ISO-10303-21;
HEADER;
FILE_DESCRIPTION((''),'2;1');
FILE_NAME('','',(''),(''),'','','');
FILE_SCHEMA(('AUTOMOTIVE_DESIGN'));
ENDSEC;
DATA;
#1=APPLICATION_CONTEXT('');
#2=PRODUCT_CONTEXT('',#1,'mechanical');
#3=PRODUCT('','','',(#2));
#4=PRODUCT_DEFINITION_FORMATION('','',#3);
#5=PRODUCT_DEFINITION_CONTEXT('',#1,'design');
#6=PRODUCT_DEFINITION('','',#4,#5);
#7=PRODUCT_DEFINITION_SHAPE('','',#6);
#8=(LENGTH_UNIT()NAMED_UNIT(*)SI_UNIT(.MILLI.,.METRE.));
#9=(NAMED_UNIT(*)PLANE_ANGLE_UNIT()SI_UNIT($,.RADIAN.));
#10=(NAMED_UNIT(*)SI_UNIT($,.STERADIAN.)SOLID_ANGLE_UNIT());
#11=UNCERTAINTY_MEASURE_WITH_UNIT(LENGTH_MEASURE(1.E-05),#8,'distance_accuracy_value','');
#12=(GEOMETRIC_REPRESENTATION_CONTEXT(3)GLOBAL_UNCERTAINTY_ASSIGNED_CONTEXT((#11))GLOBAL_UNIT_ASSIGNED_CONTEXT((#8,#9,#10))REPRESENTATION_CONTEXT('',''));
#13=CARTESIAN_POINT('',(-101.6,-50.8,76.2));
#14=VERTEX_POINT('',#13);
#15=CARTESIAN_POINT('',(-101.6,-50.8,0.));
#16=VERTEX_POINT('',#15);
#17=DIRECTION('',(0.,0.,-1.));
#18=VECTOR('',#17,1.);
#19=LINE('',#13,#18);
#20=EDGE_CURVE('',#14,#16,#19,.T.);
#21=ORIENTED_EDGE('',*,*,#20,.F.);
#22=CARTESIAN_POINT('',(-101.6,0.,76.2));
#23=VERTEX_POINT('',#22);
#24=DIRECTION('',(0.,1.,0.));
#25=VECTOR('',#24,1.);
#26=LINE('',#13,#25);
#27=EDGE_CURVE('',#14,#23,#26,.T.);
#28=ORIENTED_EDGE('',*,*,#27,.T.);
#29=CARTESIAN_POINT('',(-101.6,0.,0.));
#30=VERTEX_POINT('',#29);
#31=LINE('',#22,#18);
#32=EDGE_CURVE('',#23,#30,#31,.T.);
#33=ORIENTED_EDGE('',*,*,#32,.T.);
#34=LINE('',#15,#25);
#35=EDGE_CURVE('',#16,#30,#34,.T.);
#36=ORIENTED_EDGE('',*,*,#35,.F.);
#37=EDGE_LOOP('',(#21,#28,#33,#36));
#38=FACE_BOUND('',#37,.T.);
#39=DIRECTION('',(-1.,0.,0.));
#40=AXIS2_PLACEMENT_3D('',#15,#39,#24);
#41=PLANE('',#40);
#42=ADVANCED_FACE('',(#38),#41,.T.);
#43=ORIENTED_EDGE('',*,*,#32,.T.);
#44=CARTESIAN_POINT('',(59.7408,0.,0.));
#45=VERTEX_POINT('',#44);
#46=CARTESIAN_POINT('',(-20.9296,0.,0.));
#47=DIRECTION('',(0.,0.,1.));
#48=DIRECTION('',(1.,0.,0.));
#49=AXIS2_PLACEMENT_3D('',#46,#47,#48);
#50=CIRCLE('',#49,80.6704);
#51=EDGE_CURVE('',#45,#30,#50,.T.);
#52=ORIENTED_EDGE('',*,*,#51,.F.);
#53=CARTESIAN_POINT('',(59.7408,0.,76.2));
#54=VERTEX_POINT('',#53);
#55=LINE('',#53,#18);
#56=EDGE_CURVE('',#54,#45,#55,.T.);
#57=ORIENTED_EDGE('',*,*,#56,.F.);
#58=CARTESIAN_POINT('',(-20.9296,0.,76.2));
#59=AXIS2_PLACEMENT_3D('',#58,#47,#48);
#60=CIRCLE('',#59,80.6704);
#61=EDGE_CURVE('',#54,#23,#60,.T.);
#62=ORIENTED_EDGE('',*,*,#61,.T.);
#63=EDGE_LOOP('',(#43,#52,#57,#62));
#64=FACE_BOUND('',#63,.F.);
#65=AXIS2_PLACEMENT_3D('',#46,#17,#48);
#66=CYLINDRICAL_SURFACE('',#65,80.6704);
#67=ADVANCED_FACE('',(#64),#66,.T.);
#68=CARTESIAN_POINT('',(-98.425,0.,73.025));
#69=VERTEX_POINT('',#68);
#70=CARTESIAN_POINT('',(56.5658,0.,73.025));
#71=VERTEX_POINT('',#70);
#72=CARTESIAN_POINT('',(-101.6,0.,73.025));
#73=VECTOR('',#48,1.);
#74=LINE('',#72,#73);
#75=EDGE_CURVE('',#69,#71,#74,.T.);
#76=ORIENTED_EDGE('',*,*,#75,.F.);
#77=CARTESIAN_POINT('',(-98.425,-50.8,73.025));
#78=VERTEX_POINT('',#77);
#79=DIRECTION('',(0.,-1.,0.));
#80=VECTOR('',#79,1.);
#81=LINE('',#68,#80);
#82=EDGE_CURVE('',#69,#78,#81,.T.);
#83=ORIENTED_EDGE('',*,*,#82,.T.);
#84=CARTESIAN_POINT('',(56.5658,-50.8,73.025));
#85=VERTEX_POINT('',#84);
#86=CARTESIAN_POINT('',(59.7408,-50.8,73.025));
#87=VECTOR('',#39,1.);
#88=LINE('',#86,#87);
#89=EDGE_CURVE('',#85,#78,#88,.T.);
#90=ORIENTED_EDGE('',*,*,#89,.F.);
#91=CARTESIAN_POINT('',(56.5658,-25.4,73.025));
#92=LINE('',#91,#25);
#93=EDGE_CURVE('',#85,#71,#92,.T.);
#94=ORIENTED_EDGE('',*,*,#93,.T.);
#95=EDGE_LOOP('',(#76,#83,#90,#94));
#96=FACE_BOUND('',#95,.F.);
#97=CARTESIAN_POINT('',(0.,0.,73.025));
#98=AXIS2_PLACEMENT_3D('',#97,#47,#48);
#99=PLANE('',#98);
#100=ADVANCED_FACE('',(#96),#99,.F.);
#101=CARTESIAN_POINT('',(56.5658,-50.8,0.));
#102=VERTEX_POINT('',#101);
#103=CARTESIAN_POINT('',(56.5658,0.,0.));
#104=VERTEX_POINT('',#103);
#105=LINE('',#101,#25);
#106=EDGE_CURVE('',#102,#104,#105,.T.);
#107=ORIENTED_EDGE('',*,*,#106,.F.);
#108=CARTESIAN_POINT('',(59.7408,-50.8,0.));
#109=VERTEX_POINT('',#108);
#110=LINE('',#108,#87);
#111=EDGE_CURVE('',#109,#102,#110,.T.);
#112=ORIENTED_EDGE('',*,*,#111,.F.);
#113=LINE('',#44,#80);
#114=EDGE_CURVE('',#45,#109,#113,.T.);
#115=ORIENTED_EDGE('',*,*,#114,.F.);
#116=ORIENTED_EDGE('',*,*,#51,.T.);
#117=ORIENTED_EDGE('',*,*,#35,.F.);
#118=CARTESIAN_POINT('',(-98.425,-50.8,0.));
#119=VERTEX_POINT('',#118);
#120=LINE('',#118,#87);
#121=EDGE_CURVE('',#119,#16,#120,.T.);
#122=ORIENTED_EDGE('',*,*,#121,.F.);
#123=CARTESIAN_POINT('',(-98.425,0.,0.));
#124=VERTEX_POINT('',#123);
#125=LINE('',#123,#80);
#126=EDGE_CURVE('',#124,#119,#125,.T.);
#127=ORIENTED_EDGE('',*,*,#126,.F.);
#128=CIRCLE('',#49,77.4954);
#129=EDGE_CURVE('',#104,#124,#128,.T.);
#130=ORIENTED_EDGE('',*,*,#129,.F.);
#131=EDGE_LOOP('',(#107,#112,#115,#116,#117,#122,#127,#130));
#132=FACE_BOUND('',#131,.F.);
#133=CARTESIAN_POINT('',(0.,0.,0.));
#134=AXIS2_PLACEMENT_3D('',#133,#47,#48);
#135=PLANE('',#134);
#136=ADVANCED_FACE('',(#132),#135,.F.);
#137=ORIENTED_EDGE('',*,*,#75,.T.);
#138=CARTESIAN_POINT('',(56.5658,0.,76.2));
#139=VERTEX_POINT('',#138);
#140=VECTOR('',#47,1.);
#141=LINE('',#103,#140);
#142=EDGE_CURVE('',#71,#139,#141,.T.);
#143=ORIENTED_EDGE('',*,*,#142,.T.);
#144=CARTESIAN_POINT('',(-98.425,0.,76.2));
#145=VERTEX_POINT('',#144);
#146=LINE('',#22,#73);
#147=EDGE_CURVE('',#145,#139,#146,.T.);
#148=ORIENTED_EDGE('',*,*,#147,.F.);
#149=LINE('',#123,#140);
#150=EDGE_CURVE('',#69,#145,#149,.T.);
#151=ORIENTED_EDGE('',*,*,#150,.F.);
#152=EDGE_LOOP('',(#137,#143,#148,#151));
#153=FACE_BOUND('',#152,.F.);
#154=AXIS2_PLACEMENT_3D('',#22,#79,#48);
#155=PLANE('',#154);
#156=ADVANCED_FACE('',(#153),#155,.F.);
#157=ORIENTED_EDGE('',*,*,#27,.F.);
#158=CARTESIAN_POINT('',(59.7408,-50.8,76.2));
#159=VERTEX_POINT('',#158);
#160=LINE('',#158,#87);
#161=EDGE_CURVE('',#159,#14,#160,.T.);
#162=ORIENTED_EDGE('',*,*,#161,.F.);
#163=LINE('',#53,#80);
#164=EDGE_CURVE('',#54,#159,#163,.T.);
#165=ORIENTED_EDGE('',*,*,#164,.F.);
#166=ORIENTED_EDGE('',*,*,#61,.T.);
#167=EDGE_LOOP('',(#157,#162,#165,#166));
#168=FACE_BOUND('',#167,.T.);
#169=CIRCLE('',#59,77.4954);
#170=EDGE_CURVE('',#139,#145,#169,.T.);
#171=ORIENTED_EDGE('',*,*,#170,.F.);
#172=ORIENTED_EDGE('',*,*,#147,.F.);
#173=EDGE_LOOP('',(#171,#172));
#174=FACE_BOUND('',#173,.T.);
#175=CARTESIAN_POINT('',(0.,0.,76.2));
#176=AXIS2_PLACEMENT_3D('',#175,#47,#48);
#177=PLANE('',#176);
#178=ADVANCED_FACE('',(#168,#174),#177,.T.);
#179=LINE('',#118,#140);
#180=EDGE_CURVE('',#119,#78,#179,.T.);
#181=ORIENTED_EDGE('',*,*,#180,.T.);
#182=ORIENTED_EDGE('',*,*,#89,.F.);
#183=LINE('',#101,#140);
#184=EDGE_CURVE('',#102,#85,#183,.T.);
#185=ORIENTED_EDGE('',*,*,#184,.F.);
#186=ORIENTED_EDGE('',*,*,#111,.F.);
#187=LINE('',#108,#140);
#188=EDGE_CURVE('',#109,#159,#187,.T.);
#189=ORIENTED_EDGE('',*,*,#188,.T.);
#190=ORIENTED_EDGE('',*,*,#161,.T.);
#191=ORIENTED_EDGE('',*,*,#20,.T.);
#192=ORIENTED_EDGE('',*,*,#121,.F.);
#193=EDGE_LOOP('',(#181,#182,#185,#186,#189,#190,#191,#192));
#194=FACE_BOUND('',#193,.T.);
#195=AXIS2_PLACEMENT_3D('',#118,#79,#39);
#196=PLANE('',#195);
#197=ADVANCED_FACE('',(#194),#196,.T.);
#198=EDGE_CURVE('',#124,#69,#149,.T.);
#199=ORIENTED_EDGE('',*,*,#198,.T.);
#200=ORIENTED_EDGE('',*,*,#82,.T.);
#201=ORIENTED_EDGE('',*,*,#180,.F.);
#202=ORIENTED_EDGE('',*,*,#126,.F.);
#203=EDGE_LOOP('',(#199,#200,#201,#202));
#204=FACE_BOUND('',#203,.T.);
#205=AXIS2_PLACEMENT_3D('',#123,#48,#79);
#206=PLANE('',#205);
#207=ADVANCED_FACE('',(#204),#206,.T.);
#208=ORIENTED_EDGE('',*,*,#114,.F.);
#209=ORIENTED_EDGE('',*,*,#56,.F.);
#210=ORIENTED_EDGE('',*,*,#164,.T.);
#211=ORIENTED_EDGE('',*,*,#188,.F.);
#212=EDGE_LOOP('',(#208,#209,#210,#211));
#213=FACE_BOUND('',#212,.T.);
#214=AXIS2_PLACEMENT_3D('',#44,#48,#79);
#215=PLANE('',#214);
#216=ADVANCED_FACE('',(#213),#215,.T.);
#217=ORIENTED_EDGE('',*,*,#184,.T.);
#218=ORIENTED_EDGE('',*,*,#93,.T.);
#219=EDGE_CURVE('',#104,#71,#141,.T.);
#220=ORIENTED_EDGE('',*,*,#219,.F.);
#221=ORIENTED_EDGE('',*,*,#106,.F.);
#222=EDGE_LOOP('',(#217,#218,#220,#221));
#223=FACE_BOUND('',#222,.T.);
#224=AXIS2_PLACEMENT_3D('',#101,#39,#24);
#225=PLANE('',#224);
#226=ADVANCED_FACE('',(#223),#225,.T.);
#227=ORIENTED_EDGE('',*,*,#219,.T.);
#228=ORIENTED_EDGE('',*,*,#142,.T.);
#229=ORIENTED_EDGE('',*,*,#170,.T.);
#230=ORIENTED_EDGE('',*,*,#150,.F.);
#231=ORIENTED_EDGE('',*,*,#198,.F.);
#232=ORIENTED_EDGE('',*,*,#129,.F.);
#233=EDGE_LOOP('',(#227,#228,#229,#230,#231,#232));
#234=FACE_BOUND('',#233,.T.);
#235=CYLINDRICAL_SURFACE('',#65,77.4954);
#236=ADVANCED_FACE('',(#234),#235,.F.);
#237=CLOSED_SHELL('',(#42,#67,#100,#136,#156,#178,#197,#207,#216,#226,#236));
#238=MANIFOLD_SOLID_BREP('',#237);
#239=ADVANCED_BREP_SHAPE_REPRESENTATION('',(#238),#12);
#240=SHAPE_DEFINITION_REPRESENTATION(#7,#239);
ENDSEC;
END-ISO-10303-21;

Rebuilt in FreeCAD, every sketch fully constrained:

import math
import FreeCAD as App
import Part
import Sketcher
Q = App.Units.Quantity


def add_polygon(sketch, points):
    """Adds a closed chain of lines whose ends are joined by coincident constraints."""
    first, n = sketch.GeometryCount, len(points)
    for a, b in zip(points, points[1:] + points[:1]):
        sketch.addGeometry(Part.LineSegment(App.Vector(*a, 0), App.Vector(*b, 0)), False)
    for i in range(n):
        sketch.addConstraint(Sketcher.Constraint("Coincident", first + i, 2, first + (i + 1) % n, 1))

doc = App.newDocument("Part")
body = doc.addObject("PartDesign::Body", "Body")

sketch1 = body.newObject("Sketcher::SketchObject", "Sketch")
sketch1.AttachmentSupport = (doc.getObject("XY_Plane"), [""])
sketch1.MapMode = "FlatFace"
sketch1.addGeometry([
    Part.ArcOfCircle(Part.Circle(App.Vector(-20.9, 0, 0), App.Vector(0, 0, 1), 77.5), math.radians(0), math.radians(180)),
    Part.LineSegment(App.Vector(56.6, 0, 0), App.Vector(56.6, -50.8, 0)),
    Part.LineSegment(App.Vector(56.6, -50.8, 0), App.Vector(59.7, -50.8, 0)),
    Part.LineSegment(App.Vector(59.7, -50.8, 0), App.Vector(59.7, 0, 0)),
    Part.ArcOfCircle(Part.Circle(App.Vector(-20.9, 0, 0), App.Vector(0, 0, 1), 80.7), math.radians(0), math.radians(180)),
    Part.LineSegment(App.Vector(-101.6, 0, 0), App.Vector(-101.6, -50.8, 0)),
    Part.LineSegment(App.Vector(-101.6, -50.8, 0), App.Vector(-98.4, -50.8, 0)),
    Part.LineSegment(App.Vector(-98.4, -50.8, 0), App.Vector(-98.4, 0, 0)),
], False)
sketch1.addConstraint([
    Sketcher.Constraint("Tangent", 0, 1, 1, 1),
    Sketcher.Constraint("Coincident", 1, 2, 2, 1),
    Sketcher.Constraint("Coincident", 2, 2, 3, 1),
    Sketcher.Constraint("Tangent", 3, 2, 4, 1),
    Sketcher.Constraint("Tangent", 4, 2, 5, 1),
    Sketcher.Constraint("Coincident", 5, 2, 6, 1),
    Sketcher.Constraint("Coincident", 6, 2, 7, 1),
    Sketcher.Constraint("Tangent", 7, 2, 0, 2),
    Sketcher.Constraint("Vertical", 1),
    Sketcher.Constraint("Horizontal", 2),
    Sketcher.Constraint("Vertical", 3),
    Sketcher.Constraint("Vertical", 5),
    Sketcher.Constraint("Horizontal", 6),
    Sketcher.Constraint("Vertical", 7),
    Sketcher.Constraint("Coincident", 4, 3, 0, 3),
    Sketcher.Constraint("PointOnObject", 0, 3, -1),
    Sketcher.Constraint("Horizontal", 2, 2, 5, 2),
    Sketcher.Constraint("DistanceY", 1, 2, 1, 1, Q("2 in")),
    Sketcher.Constraint("Radius", 4, Q("3.176 in")),
    Sketcher.Constraint("DistanceX", 2, 1, 2, 2, Q("0.125 in")),
    Sketcher.Constraint("DistanceX", 4, 2, -1, 1, Q("4 in")),
])
pad1 = body.newObject("PartDesign::Pad", "Pad")
pad1.Profile = sketch1
pad1.Length = Q("3 in")

sketch2 = body.newObject("Sketcher::SketchObject", "Sketch001")
sketch2.AttachmentSupport = (doc.getObject("XY_Plane"), [""])
sketch2.MapMode = "FlatFace"
sketch2.AttachmentOffset = App.Placement(App.Vector(0, 0, 3 * 25.4), App.Rotation())
add_polygon(sketch2, [(60, 0), (-102, 0), (-102, -51), (60, -51)])
sketch2.addConstraint([
    Sketcher.Constraint("Horizontal", 0),
    Sketcher.Constraint("Vertical", 1),
    Sketcher.Constraint("Horizontal", 2),
    Sketcher.Constraint("Vertical", 3),
    Sketcher.Constraint("PointOnObject", 0, 2, -1),
    Sketcher.Constraint("DistanceY", 1, 2, 1, 1, Q("2 in")),
    Sketcher.Constraint("DistanceX", 0, 2, -1, 1, Q("4 in")),
    Sketcher.Constraint("DistanceX", 0, 2, 0, 1, Q("6.352 in")),
])
pad2 = body.newObject("PartDesign::Pad", "Pad001")
pad2.Profile = sketch2
pad2.Length = Q("0.125 in")
pad2.Reversed = True

doc.recompute()
